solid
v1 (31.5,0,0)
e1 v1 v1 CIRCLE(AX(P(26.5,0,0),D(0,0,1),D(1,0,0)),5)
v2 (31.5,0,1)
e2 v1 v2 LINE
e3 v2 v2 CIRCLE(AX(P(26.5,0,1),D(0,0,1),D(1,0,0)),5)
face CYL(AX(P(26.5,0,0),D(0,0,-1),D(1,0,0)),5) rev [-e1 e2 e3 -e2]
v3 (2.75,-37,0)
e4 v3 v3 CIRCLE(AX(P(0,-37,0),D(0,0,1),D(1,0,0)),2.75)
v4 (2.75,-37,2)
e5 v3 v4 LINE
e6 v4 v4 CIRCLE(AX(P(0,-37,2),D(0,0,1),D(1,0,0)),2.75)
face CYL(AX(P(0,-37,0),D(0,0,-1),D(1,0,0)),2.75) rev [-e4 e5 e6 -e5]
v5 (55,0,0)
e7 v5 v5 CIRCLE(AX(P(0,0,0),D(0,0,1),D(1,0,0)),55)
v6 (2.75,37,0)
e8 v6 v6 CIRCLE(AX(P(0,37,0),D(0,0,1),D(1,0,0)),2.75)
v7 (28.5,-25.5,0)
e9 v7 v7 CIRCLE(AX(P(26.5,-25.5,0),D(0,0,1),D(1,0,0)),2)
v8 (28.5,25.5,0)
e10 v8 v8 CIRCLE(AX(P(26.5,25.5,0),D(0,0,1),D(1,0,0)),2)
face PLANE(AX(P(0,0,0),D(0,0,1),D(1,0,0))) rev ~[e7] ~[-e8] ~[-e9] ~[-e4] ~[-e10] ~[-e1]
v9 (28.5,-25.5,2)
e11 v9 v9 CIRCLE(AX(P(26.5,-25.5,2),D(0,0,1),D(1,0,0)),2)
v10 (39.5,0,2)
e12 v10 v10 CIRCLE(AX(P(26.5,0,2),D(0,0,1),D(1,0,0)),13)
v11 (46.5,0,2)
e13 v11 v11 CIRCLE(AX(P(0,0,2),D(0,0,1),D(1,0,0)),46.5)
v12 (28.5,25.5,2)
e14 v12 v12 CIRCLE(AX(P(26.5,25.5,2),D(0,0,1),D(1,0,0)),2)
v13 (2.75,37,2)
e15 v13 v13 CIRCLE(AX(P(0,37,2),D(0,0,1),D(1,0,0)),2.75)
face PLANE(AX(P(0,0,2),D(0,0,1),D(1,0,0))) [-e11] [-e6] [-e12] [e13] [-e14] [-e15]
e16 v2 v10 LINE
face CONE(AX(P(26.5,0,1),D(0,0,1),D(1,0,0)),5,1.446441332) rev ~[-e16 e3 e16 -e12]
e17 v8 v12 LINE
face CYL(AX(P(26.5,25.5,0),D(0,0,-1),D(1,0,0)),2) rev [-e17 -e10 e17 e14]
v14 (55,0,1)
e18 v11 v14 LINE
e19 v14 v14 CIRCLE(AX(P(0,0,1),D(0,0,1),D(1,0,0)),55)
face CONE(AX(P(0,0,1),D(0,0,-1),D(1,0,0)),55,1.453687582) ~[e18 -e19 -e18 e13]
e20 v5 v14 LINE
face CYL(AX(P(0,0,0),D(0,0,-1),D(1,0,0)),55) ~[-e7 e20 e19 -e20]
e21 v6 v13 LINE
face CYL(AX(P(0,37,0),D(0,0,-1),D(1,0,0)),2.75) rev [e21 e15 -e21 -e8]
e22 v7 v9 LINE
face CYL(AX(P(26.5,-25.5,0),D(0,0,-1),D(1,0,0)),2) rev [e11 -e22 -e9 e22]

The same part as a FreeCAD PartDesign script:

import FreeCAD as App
import Part
import Sketcher
from FreeCAD import Vector
Q = App.Units.Quantity


def edges_at(feature, points):
    """Names of the edges that pass closest to the given points."""
    edges = feature.Shape.Edges
    near = lambda p: min(range(len(edges)), key=lambda i: edges[i].distToShape(Part.Vertex(*p))[0])
    return sorted({f"Edge{near(p) + 1}" for p in points})

doc = App.newDocument("Part")
params = doc.addObject("Spreadsheet::Sheet", "Params")
for row, (alias, value) in enumerate([
    ("sketch1_diameter", "110 mm"),
    ("sketch1_diameter2", "4 mm"),
    ("sketch1_diameter3", "10 mm"),
    ("sketch1_diameter4", "5.5 mm"),
    ("pad1_length", "2 mm"),
    ("chamfer_size", "8.5 mm"),
    ("chamfer_size2", "1 mm"),
    ("chamfer2_size", "1 mm"),
    ("chamfer2_size2", "8 mm"),
], start=1):
    params.set(f"A{row}", alias)
    params.set(f"B{row}", "=" + value)
    params.setAlias(f"B{row}", alias)

body = doc.addObject("PartDesign::Body", "Body")

# Sketch on XY plane
sketch1 = body.newObject("Sketcher::SketchObject", "Sketch")
sketch1.AttachmentSupport = (doc.getObject("XY_Plane"), [""])
sketch1.MapMode = "FlatFace"
sketch1.addGeometry([
    Part.Circle(Vector(0, 0, 0), Vector(0, 0, 1), 55),  # 0
    Part.Circle(Vector(0, -37, 0), Vector(0, 0, 1), 2.75),  # 1
    Part.Circle(Vector(26.5, -25.5, 0), Vector(0, 0, 1), 2),  # 2
    Part.Circle(Vector(0, 37, 0), Vector(0, 0, 1), 2.75),  # 3
    Part.Circle(Vector(26.5, 0, 0), Vector(0, 0, 1), 5),  # 4
    Part.Circle(Vector(26.5, 25.5, 0), Vector(0, 0, 1), 2),  # 5
], False)
sketch1.addConstraint([
    Sketcher.Constraint("Coincident", 0, 3, -1, 1),
    Sketcher.Constraint("Equal", 1, 3),
    Sketcher.Constraint("Equal", 2, 5),
    Sketcher.Constraint("Symmetric", 1, 3, 3, 3, -1, 1),
    Sketcher.Constraint("Symmetric", 2, 3, 5, 3, -1),
    Sketcher.Constraint("PointOnObject", 1, 3, -2),
    Sketcher.Constraint("PointOnObject", 4, 3, -1),
    Sketcher.Constraint("Vertical", 2, 3, 4, 3),
    Sketcher.Constraint("Diameter", 0, Q("110 mm")),
    Sketcher.Constraint("Diameter", 2, Q("4 mm")),
    Sketcher.Constraint("Diameter", 4, Q("10 mm")),
    Sketcher.Constraint("Diameter", 1, Q("5.5 mm")),
    Sketcher.Constraint("DistanceY", 1, 3, -1, 1, Q("37 mm")),
    Sketcher.Constraint("DistanceY", 2, 3, 5, 3, Q("51 mm")),
    Sketcher.Constraint("DistanceX", -1, 1, 2, 3, Q("26.5 mm")),
])
sketch1.setExpression("Constraints[8]", "Params.sketch1_diameter")
sketch1.setExpression("Constraints[9]", "Params.sketch1_diameter2")
sketch1.setExpression("Constraints[10]", "Params.sketch1_diameter3")
sketch1.setExpression("Constraints[11]", "Params.sketch1_diameter4")
pad1 = body.newObject("PartDesign::Pad", "Pad")
pad1.Profile = sketch1
pad1.setExpression("Length", "Params.pad1_length")
doc.recompute()

chamfer = body.newObject("PartDesign::Chamfer", "Chamfer")
chamfer.Base = (pad1, edges_at(pad1, [(-55, 0, 2)]))
chamfer.ChamferType = "Two distances"
chamfer.setExpression("Size", "Params.chamfer_size")
chamfer.setExpression("Size2", "Params.chamfer_size2")
chamfer.FlipDirection = True
doc.recompute()

chamfer2 = body.newObject("PartDesign::Chamfer", "Chamfer001")
chamfer2.Base = (chamfer, edges_at(chamfer, [(21.5, 0, 2)]))
chamfer2.ChamferType = "Two distances"
chamfer2.setExpression("Size", "Params.chamfer2_size")
chamfer2.setExpression("Size2", "Params.chamfer2_size2")
chamfer2.FlipDirection = True

doc.recompute()
